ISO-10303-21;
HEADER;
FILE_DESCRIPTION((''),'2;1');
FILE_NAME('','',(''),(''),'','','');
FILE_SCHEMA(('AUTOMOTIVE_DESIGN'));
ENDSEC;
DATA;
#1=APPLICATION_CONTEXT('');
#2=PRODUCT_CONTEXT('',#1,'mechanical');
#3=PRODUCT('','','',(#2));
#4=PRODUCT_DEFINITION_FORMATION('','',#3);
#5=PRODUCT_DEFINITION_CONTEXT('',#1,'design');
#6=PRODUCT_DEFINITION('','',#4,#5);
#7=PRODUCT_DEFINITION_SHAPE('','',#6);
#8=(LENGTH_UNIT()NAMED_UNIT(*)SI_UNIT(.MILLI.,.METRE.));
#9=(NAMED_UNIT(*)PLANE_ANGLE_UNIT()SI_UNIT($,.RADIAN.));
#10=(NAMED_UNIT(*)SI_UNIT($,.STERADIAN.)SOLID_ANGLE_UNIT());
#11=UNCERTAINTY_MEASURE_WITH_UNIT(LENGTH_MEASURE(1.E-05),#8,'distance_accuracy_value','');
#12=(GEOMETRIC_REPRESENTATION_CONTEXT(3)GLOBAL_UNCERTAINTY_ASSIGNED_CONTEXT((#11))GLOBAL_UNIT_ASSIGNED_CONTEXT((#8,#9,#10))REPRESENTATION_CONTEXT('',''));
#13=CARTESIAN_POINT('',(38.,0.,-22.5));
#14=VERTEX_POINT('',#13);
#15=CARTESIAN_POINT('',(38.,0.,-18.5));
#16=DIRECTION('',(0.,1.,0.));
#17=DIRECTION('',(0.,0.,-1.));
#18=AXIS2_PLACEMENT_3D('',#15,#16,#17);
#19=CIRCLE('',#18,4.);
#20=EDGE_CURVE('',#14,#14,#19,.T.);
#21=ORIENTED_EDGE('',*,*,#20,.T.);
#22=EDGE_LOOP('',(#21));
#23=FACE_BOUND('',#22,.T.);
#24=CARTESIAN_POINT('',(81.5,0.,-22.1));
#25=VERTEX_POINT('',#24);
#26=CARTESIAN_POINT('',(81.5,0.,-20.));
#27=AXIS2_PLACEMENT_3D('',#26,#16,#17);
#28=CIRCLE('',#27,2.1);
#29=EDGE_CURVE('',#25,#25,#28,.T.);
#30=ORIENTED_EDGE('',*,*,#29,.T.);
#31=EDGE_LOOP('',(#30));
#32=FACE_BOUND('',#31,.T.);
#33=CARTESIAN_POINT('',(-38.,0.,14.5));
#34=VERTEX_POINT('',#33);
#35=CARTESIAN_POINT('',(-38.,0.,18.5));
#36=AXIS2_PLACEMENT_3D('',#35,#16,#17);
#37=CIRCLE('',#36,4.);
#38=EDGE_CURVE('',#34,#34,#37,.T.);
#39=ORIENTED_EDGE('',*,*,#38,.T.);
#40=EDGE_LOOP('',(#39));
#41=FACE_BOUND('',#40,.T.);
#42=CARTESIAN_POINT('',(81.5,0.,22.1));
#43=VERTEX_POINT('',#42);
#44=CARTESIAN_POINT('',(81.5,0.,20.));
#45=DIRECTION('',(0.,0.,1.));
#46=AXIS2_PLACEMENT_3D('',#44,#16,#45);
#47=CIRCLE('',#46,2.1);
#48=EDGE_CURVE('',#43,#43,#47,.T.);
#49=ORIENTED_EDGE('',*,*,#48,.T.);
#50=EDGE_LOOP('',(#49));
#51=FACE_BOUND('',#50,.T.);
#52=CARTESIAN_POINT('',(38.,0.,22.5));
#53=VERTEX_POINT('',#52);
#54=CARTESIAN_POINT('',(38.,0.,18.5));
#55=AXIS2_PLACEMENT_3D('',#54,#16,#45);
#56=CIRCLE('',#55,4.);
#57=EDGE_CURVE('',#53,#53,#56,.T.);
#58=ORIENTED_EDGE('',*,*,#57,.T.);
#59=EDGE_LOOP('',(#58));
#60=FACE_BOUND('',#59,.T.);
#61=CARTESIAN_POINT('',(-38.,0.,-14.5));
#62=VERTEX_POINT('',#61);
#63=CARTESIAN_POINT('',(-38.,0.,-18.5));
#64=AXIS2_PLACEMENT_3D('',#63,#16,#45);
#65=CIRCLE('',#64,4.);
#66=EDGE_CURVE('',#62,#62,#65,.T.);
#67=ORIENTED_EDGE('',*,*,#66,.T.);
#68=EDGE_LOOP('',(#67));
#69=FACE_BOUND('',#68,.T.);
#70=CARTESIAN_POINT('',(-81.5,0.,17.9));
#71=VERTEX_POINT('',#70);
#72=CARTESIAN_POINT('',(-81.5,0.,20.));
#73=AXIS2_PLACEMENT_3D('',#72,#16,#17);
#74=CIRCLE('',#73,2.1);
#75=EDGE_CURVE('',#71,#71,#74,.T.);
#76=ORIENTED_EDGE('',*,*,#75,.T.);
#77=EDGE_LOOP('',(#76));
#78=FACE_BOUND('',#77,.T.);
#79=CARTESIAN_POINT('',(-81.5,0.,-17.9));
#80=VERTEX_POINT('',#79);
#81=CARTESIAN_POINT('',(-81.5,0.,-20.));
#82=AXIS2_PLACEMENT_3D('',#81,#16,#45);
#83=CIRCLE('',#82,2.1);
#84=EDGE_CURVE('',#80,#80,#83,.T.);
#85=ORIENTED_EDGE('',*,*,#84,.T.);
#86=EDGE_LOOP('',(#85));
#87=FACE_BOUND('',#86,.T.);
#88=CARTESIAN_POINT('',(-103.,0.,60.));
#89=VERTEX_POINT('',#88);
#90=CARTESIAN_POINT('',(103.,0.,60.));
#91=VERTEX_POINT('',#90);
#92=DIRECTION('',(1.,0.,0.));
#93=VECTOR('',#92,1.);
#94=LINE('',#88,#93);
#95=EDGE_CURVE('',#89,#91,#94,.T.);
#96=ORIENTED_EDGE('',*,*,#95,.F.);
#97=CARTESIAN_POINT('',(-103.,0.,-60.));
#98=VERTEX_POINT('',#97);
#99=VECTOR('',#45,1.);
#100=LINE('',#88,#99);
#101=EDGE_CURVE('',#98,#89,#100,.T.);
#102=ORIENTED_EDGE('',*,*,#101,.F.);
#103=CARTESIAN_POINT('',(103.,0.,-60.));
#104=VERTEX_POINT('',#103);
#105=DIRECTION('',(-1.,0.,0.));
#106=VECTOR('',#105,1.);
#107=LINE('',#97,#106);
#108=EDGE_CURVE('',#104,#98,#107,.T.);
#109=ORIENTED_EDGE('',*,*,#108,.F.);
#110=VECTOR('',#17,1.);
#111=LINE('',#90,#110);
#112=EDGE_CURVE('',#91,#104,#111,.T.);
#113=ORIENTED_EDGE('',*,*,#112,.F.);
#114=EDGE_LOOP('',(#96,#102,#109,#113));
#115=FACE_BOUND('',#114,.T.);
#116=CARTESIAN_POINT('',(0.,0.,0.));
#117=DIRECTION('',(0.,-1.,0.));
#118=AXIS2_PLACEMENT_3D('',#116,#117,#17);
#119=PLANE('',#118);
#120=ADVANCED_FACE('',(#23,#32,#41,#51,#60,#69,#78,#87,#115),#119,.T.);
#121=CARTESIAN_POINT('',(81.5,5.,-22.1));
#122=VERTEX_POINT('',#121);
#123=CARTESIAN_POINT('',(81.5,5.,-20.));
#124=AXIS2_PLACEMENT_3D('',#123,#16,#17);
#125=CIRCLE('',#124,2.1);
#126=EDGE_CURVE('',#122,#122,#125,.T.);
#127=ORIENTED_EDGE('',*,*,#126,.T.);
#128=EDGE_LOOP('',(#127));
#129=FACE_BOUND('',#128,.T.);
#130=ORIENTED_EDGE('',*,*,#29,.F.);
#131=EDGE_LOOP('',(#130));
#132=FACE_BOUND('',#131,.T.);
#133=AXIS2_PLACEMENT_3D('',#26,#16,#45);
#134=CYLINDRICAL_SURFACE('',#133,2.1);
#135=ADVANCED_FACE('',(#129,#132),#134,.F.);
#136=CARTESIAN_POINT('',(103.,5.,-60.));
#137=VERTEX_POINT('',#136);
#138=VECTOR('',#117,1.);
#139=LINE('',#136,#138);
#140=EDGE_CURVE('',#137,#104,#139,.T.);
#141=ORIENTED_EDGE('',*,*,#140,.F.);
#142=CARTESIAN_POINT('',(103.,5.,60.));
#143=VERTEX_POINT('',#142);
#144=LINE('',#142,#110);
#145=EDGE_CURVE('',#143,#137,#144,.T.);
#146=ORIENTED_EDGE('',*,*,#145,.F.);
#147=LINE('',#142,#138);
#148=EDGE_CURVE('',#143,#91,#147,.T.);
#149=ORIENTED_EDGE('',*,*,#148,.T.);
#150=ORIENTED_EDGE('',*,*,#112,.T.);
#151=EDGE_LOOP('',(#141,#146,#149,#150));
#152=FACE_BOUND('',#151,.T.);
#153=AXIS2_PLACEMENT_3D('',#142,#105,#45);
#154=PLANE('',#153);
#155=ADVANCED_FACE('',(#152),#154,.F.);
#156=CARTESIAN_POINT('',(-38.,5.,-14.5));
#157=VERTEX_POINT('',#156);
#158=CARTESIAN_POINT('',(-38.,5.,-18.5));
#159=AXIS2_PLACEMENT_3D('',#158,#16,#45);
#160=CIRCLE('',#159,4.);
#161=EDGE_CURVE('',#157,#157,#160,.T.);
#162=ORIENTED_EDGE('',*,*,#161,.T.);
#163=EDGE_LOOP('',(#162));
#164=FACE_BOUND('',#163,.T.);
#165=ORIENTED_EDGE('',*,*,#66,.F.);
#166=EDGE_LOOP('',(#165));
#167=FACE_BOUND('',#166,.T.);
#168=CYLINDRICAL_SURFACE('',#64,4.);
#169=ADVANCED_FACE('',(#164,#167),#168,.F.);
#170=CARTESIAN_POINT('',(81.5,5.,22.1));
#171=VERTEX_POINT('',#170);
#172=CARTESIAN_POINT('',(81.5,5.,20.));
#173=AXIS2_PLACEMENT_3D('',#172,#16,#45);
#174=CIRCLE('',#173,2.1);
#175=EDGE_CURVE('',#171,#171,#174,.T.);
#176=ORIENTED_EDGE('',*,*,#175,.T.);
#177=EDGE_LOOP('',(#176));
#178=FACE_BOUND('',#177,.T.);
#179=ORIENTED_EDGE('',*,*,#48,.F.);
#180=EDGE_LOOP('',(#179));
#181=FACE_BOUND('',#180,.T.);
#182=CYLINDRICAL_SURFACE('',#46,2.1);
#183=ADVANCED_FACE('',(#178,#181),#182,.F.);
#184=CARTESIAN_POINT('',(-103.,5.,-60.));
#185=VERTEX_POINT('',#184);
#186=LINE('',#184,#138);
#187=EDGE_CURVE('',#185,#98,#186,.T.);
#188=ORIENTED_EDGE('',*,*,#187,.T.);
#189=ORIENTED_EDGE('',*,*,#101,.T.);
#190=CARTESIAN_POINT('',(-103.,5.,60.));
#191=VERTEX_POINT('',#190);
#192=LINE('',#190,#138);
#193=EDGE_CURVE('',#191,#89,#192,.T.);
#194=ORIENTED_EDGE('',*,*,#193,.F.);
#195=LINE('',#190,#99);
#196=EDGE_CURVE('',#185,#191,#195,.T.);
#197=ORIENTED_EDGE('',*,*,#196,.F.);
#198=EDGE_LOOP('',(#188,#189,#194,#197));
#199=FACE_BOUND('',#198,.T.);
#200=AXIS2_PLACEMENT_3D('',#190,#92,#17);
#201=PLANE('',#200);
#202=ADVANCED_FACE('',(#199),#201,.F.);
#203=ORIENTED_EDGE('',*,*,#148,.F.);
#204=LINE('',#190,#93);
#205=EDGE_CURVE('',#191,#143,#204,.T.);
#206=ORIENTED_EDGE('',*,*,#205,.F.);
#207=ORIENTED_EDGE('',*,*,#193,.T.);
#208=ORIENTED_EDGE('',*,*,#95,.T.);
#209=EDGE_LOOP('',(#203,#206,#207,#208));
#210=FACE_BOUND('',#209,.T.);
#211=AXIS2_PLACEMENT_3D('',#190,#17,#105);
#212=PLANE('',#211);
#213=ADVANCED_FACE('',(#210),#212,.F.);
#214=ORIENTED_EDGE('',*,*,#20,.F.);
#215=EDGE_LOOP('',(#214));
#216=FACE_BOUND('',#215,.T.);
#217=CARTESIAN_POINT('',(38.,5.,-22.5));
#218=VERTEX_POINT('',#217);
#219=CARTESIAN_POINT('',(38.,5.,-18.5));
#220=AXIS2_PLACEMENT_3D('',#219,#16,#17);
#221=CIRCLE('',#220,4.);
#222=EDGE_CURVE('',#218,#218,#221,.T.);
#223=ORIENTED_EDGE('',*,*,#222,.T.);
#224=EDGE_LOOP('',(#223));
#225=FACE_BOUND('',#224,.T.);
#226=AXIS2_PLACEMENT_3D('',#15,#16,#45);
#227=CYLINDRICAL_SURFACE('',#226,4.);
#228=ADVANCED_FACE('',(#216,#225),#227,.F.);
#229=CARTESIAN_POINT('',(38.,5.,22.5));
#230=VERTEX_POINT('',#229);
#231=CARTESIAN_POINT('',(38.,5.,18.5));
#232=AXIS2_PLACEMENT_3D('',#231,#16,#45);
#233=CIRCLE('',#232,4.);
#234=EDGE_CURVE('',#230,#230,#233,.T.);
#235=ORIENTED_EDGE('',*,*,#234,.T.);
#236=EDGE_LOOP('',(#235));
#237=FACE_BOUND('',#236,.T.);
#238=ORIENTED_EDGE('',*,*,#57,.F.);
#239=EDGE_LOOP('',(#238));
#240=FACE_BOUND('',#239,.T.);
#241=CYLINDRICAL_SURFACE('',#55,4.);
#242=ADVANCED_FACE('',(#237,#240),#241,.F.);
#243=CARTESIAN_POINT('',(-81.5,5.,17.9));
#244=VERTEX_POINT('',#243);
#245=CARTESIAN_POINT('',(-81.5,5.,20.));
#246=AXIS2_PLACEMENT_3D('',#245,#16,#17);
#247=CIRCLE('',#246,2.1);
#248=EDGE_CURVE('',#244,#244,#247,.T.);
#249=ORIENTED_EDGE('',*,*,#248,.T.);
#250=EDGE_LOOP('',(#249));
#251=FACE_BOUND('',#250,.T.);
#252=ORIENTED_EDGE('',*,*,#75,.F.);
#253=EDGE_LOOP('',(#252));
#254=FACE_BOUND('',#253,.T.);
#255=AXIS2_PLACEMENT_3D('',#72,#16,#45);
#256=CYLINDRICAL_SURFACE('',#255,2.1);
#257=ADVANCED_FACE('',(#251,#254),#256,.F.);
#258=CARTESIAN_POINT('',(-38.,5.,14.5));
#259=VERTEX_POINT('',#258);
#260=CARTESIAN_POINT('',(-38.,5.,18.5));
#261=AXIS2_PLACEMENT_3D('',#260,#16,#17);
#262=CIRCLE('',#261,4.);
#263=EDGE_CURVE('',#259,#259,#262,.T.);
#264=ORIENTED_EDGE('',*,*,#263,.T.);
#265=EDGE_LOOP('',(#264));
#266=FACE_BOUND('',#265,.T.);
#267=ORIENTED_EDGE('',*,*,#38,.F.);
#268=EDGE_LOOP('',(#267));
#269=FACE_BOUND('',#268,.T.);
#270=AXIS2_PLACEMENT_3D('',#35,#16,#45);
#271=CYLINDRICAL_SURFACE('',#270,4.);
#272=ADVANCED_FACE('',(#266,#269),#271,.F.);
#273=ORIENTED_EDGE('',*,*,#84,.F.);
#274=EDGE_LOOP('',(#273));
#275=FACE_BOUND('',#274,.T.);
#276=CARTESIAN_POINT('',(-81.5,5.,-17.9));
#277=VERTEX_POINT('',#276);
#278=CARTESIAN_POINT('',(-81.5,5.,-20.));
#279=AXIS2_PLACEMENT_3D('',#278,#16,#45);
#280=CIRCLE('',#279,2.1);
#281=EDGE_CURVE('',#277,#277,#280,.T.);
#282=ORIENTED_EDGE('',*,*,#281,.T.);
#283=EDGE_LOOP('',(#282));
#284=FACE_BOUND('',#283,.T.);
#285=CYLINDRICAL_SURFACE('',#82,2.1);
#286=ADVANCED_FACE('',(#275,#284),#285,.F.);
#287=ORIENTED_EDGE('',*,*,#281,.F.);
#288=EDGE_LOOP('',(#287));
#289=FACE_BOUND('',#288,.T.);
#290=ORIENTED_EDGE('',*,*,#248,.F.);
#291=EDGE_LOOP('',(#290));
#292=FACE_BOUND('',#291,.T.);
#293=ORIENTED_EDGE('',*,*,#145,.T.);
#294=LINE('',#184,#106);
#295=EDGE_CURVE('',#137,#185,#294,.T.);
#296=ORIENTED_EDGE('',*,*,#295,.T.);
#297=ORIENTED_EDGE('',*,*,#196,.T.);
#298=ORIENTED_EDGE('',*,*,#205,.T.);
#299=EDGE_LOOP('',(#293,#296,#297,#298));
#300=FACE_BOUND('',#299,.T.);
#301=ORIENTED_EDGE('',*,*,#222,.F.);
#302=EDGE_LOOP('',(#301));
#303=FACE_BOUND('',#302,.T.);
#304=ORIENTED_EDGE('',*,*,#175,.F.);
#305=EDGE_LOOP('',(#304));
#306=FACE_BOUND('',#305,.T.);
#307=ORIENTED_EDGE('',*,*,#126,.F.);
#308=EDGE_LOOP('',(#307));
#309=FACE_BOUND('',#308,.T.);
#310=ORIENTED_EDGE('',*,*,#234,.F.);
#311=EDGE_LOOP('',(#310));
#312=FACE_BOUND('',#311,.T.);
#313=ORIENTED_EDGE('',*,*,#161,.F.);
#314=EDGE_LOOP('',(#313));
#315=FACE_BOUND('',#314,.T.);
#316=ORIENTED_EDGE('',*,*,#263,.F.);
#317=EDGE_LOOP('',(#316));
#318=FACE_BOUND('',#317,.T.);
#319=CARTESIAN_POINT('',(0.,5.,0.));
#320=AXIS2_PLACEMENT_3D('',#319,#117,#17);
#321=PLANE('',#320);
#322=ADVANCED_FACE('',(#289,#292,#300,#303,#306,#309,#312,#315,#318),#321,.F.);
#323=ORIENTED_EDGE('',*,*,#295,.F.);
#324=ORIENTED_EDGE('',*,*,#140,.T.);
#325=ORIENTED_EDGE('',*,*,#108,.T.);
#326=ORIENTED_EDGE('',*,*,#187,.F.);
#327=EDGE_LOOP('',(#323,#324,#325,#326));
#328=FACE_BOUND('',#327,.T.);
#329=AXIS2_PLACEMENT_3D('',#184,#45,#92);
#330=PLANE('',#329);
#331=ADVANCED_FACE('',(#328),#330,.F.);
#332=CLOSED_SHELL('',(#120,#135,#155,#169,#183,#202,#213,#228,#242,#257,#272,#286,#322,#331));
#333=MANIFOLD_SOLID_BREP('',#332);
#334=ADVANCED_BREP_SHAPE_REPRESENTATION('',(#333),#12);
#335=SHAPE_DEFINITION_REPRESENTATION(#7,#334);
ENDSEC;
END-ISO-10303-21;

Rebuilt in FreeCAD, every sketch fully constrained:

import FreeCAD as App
import Part
import Sketcher
from FreeCAD import Vector
Q = App.Units.Quantity


def add_polygon(sketch, points):
    """Adds a closed chain of lines whose ends are joined by coincident constraints."""
    first, n = sketch.GeometryCount, len(points)
    for a, b in zip(points, points[1:] + points[:1]):
        sketch.addGeometry(Part.LineSegment(App.Vector(*a, 0), App.Vector(*b, 0)), False)
    for i in range(n):
        sketch.addConstraint(Sketcher.Constraint("Coincident", first + i, 2, first + (i + 1) % n, 1))

doc = App.newDocument("Part")
body = doc.addObject("PartDesign::Body", "Body")

# Sketch on XZ plane
sketch1 = body.newObject("Sketcher::SketchObject", "Sketch")
sketch1.AttachmentSupport = (doc.getObject("XZ_Plane"), [""])
sketch1.MapMode = "FlatFace"
add_polygon(sketch1, [(-103, -60), (-103, 60), (103, 60), (103, -60)])  # lines 0-3
sketch1.addConstraint(Sketcher.Constraint("Vertical", 0))
sketch1.addConstraint(Sketcher.Constraint("Horizontal", 1))
sketch1.addConstraint(Sketcher.Constraint("Vertical", 2))
sketch1.addConstraint(Sketcher.Constraint("Horizontal", 3))
sketch1.addConstraint(Sketcher.Constraint("Symmetric", 0, 2, 2, 2, -1, 1))
sketch1.addConstraint(Sketcher.Constraint("DistanceX", 1, 1, 1, 2, Q("206 mm")))
sketch1.addConstraint(Sketcher.Constraint("DistanceY", 0, 1, 0, 2, Q("120 mm")))
pad1 = body.newObject("PartDesign::Pad", "Pad")
pad1.Profile = sketch1
pad1.Length = 5
pad1.Reversed = True

# Sketch on XZ plane
sketch2 = body.newObject("Sketcher::SketchObject", "Sketch001")
sketch2.AttachmentSupport = (doc.getObject("XZ_Plane"), [""])
sketch2.MapMode = "FlatFace"
sketch2.AttachmentOffset = App.Placement(Vector(0, 0, -5), App.Rotation())
sketch2.addGeometry(Part.Circle(Vector(-81.5, -20, 0), Vector(0, 0, 1), 2.1), False)
sketch2.addGeometry(Part.Circle(Vector(81.5, -20, 0), Vector(0, 0, 1), 2.1), False)
sketch2.addGeometry(Part.Circle(Vector(81.5, 20, 0), Vector(0, 0, 1), 2.1), False)
sketch2.addGeometry(Part.Circle(Vector(-81.5, 20, 0), Vector(0, 0, 1), 2.1), False)
sketch2.addConstraint(Sketcher.Constraint("Equal", 0, 1))
sketch2.addConstraint(Sketcher.Constraint("Equal", 1, 2))
sketch2.addConstraint(Sketcher.Constraint("Equal", 2, 3))
sketch2.addConstraint(Sketcher.Constraint("Symmetric", 0, 3, 2, 3, -1, 1))
sketch2.addConstraint(Sketcher.Constraint("Symmetric", 1, 3, 3, 3, -1, 1))
sketch2.addConstraint(Sketcher.Constraint("Symmetric", 0, 3, 1, 3, -2))
sketch2.addConstraint(Sketcher.Constraint("Diameter", 0, Q("4.2 mm")))
sketch2.addConstraint(Sketcher.Constraint("DistanceY", 0, 3, -1, 1, Q("20 mm")))
sketch2.addConstraint(Sketcher.Constraint("DistanceX", 0, 3, 1, 3, Q("163 mm")))
pocket1 = body.newObject("PartDesign::Pocket", "Pocket")
pocket1.Profile = sketch2
pocket1.Type = "ThroughAll"
pocket1.Reversed = True

# Sketch on XZ plane
sketch3 = body.newObject("Sketcher::SketchObject", "Sketch002")
sketch3.AttachmentSupport = (doc.getObject("XZ_Plane"), [""])
sketch3.MapMode = "FlatFace"
sketch3.AttachmentOffset = App.Placement(Vector(0, 0, -5), App.Rotation())
sketch3.addGeometry(Part.Circle(Vector(-38, -18.5, 0), Vector(0, 0, 1), 4), False)
sketch3.addGeometry(Part.Circle(Vector(38, -18.5, 0), Vector(0, 0, 1), 4), False)
sketch3.addGeometry(Part.Circle(Vector(38, 18.5, 0), Vector(0, 0, 1), 4), False)
sketch3.addGeometry(Part.Circle(Vector(-38, 18.5, 0), Vector(0, 0, 1), 4), False)
sketch3.addConstraint(Sketcher.Constraint("Equal", 0, 1))
sketch3.addConstraint(Sketcher.Constraint("Equal", 1, 2))
sketch3.addConstraint(Sketcher.Constraint("Equal", 2, 3))
sketch3.addConstraint(Sketcher.Constraint("Symmetric", 0, 3, 2, 3, -1, 1))
sketch3.addConstraint(Sketcher.Constraint("Symmetric", 1, 3, 3, 3, -1, 1))
sketch3.addConstraint(Sketcher.Constraint("Symmetric", 0, 3, 1, 3, -2))
sketch3.addConstraint(Sketcher.Constraint("Diameter", 0, Q("8 mm")))
sketch3.addConstraint(Sketcher.Constraint("DistanceX", 0, 3, -1, 1, Q("38 mm")))
sketch3.addConstraint(Sketcher.Constraint("DistanceY", 1, 3, 2, 3, Q("37 mm")))
pocket2 = body.newObject("PartDesign::Pocket", "Pocket001")
pocket2.Profile = sketch3
pocket2.Type = "ThroughAll"
pocket2.Reversed = True

doc.recompute()
